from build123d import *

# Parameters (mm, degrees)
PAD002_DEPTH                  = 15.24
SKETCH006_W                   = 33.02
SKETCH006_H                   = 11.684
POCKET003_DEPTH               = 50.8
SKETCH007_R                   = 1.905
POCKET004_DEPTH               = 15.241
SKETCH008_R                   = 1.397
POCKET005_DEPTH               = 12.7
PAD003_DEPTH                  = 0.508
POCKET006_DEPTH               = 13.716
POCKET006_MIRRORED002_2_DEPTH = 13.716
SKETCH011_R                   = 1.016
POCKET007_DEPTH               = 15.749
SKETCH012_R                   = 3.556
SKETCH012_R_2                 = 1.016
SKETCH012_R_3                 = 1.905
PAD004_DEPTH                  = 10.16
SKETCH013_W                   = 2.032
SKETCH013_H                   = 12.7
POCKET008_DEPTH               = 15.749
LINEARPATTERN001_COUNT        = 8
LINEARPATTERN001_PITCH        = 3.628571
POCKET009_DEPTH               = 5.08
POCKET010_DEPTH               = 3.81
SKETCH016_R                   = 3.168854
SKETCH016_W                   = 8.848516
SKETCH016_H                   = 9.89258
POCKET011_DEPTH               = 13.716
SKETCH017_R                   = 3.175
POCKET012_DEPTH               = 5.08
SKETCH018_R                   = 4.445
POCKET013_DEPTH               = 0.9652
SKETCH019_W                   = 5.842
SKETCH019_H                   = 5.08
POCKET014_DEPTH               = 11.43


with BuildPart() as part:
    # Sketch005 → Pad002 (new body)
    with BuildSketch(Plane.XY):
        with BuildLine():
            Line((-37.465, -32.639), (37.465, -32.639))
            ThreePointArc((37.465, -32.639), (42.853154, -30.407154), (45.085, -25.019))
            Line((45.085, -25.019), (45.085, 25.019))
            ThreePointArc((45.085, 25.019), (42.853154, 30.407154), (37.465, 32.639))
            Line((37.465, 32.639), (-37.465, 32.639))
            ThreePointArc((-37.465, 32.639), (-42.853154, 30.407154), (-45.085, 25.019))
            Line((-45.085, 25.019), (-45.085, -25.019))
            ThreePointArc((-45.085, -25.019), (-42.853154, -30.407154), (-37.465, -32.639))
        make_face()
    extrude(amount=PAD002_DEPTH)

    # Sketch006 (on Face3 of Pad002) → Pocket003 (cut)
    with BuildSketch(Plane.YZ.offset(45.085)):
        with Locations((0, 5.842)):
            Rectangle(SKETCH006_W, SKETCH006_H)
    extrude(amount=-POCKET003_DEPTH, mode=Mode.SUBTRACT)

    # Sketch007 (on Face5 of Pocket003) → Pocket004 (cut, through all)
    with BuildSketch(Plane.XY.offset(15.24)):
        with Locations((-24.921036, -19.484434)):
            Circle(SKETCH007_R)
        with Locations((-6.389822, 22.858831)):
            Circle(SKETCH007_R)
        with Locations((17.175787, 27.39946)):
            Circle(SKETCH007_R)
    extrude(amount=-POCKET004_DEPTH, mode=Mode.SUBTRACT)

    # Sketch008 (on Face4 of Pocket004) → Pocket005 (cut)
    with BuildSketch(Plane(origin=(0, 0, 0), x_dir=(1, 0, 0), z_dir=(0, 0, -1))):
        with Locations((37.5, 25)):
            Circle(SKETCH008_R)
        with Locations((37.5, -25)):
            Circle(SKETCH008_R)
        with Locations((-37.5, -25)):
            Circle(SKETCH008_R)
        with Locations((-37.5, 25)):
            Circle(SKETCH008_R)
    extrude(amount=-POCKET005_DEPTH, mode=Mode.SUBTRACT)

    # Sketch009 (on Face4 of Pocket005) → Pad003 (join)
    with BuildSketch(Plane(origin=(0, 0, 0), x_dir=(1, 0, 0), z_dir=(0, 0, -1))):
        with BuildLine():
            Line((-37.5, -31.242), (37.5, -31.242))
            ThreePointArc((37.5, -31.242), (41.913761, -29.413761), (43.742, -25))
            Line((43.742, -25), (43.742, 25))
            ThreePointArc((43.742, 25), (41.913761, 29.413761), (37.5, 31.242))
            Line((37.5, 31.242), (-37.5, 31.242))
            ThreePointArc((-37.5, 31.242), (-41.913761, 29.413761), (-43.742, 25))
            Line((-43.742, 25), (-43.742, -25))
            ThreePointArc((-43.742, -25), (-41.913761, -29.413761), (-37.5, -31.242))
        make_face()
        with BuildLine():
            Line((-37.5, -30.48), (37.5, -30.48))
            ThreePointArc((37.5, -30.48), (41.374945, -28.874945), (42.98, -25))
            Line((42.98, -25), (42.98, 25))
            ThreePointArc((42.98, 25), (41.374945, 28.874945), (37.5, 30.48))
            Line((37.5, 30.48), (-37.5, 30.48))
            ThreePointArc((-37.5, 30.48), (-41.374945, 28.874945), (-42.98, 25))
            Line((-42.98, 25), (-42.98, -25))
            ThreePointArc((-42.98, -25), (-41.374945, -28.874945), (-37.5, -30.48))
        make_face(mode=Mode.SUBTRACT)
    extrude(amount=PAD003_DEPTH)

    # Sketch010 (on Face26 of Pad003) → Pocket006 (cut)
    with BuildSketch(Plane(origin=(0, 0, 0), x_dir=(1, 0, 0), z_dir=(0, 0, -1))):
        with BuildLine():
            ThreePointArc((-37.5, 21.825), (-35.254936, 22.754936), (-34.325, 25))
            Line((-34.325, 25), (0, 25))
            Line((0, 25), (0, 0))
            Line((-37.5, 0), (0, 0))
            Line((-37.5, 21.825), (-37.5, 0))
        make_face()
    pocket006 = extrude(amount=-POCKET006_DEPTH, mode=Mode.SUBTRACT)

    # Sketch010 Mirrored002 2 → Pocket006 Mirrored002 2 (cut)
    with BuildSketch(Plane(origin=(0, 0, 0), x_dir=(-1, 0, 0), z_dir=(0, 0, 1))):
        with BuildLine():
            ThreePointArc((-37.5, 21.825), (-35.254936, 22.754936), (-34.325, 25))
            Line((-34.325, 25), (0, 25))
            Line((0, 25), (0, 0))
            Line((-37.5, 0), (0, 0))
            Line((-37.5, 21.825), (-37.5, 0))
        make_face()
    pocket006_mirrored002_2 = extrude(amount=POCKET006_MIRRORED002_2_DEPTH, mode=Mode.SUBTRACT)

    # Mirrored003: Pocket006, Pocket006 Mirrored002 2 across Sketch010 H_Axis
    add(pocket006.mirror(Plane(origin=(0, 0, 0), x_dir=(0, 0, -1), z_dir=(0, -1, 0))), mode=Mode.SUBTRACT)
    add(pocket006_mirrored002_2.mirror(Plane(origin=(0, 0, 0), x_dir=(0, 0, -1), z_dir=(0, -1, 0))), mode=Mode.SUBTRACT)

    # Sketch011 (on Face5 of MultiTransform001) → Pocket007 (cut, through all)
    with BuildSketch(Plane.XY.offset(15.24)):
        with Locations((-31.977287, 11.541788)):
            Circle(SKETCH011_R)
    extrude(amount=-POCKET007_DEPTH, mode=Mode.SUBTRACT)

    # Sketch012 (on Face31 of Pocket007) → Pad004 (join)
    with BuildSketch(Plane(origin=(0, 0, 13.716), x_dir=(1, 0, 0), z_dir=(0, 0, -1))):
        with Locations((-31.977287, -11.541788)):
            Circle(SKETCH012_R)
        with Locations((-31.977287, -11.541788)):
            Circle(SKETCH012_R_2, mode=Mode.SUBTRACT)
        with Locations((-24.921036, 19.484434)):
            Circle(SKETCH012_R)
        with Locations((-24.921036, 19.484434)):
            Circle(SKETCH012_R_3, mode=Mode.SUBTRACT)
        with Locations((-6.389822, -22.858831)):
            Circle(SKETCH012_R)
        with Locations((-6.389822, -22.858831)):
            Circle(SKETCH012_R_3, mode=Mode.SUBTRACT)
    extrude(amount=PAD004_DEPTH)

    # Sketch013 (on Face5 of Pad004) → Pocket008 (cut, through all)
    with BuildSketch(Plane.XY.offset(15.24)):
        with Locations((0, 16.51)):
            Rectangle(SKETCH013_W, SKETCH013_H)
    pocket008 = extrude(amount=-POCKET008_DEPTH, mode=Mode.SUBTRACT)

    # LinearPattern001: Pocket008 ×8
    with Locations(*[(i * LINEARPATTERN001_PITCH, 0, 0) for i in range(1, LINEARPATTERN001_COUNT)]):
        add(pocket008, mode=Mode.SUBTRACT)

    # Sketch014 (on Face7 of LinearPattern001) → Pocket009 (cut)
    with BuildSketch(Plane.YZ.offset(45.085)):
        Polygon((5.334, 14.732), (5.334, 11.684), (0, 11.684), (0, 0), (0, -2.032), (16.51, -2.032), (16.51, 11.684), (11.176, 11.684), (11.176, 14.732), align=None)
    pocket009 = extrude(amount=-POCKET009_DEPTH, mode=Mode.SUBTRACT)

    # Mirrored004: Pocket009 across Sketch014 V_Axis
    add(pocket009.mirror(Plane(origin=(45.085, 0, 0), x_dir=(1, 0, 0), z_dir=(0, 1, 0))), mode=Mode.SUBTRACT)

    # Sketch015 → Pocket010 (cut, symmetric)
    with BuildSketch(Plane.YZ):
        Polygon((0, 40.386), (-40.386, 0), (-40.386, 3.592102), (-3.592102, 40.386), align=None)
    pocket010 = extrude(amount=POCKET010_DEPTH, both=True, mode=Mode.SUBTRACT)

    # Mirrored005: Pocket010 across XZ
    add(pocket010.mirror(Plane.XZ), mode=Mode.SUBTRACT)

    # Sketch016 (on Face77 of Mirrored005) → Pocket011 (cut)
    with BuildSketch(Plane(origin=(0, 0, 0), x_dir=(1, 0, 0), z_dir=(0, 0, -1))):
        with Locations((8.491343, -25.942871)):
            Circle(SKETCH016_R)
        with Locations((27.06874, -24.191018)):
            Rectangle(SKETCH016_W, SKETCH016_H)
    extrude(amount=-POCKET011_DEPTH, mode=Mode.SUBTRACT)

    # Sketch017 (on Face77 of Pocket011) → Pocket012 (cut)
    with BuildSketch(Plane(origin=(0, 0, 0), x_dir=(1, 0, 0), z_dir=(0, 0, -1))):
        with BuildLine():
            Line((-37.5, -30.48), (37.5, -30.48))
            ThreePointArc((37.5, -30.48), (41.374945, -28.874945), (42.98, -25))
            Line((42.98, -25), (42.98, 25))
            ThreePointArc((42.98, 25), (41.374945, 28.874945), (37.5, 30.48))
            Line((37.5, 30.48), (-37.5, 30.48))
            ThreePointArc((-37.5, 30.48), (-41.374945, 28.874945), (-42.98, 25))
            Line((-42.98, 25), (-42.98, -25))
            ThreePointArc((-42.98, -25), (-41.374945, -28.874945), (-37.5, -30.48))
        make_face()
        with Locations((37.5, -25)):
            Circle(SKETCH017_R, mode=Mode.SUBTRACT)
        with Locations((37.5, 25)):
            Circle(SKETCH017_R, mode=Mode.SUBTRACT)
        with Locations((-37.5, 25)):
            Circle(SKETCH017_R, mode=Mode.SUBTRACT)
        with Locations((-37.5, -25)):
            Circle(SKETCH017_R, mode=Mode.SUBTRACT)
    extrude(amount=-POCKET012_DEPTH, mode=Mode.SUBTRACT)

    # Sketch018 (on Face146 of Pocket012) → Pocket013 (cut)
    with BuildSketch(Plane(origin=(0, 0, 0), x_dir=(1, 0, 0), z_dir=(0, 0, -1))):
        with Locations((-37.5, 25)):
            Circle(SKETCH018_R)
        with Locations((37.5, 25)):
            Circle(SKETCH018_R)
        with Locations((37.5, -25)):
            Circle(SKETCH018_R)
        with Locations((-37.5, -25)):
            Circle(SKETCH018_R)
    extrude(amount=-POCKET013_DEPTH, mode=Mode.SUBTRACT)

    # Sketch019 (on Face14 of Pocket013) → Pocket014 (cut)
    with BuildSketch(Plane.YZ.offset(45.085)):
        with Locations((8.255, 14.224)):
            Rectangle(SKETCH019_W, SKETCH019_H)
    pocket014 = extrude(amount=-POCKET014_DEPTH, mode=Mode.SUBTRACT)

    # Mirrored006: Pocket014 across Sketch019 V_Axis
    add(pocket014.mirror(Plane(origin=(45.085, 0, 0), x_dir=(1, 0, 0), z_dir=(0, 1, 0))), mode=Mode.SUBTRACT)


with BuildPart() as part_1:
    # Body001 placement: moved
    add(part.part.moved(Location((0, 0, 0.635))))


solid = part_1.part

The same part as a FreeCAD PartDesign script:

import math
import FreeCAD as App
import Part
import Sketcher

V = App.Vector
Q = App.Units.Quantity

doc = App.newDocument("Part")
body = doc.addObject("PartDesign::Body", "Body")

# Sketch on XY plane
sketch1 = body.newObject("Sketcher::SketchObject", "Sketch")
sketch1.AttachmentSupport = (doc.getObject("XY_Plane"), [""])
sketch1.MapMode = "FlatFace"
sketch1.addGeometry(Part.LineSegment(V(-37, -33, 0), V(37, -33, 0)), False)
sketch1.addGeometry(Part.ArcOfCircle(Part.Circle(V(37, -25, 0), V(0, 0, 1), 8), math.radians(-90), math.radians(0)), False)
sketch1.addGeometry(Part.LineSegment(V(45, -25, 0), V(45, 25, 0)), False)
sketch1.addGeometry(Part.ArcOfCircle(Part.Circle(V(37, 25, 0), V(0, 0, 1), 8), math.radians(0), math.radians(90)), False)
sketch1.addGeometry(Part.LineSegment(V(37, 33, 0), V(-37, 33, 0)), False)
sketch1.addGeometry(Part.ArcOfCircle(Part.Circle(V(-37, 25, 0), V(0, 0, 1), 8), math.radians(90), math.radians(180)), False)
sketch1.addGeometry(Part.LineSegment(V(-45, 25, 0), V(-45, -25, 0)), False)
sketch1.addGeometry(Part.ArcOfCircle(Part.Circle(V(-37, -25, 0), V(0, 0, 1), 8), math.radians(180), math.radians(270)), False)
sketch1.addConstraint(Sketcher.Constraint("Tangent", 0, 2, 1, 1))
sketch1.addConstraint(Sketcher.Constraint("Tangent", 1, 2, 2, 1))
sketch1.addConstraint(Sketcher.Constraint("Tangent", 2, 2, 3, 1))
sketch1.addConstraint(Sketcher.Constraint("Tangent", 3, 2, 4, 1))
sketch1.addConstraint(Sketcher.Constraint("Tangent", 4, 2, 5, 1))
sketch1.addConstraint(Sketcher.Constraint("Tangent", 5, 2, 6, 1))
sketch1.addConstraint(Sketcher.Constraint("Tangent", 6, 2, 7, 1))
sketch1.addConstraint(Sketcher.Constraint("Tangent", 7, 2, 0, 1))
sketch1.addConstraint(Sketcher.Constraint("Horizontal", 0))
sketch1.addConstraint(Sketcher.Constraint("Vertical", 2))
sketch1.addConstraint(Sketcher.Constraint("Horizontal", 4))
sketch1.addConstraint(Sketcher.Constraint("Vertical", 6))
sketch1.addConstraint(Sketcher.Constraint("Equal", 1, 3))
sketch1.addConstraint(Sketcher.Constraint("Equal", 3, 5))
sketch1.addConstraint(Sketcher.Constraint("Equal", 5, 7))
sketch1.addConstraint(Sketcher.Constraint("Symmetric", 1, 3, 5, 3, -1, 1))
sketch1.addConstraint(Sketcher.Constraint("Radius", 1, Q("0.3 in")))
sketch1.addConstraint(Sketcher.Constraint("DistanceX", 0, 1, 0, 2, Q("2.95 in")))
sketch1.addConstraint(Sketcher.Constraint("DistanceY", 2, 1, 2, 2, Q("1.97 in")))
pad1 = body.newObject("PartDesign::Pad", "Pad")
pad1.Profile = sketch1
pad1.Length = Q("0.6 in")

# Sketch on YZ plane
sketch2 = body.newObject("Sketcher::SketchObject", "Sketch001")
sketch2.AttachmentSupport = (doc.getObject("YZ_Plane"), [""])
sketch2.MapMode = "FlatFace"
sketch2.AttachmentOffset = App.Placement(V(0, 0, 1.775 * 25.4), App.Rotation())
sketch2.addGeometry(Part.LineSegment(V(-17, 12, 0), V(-17, 0, 0)), False)
sketch2.addGeometry(Part.LineSegment(V(-17, 0, 0), V(17, 0, 0)), False)
sketch2.addGeometry(Part.LineSegment(V(17, 0, 0), V(17, 12, 0)), False)
sketch2.addGeometry(Part.LineSegment(V(17, 12, 0), V(-17, 12, 0)), False)
sketch2.addConstraint(Sketcher.Constraint("Coincident", 0, 2, 1, 1))
sketch2.addConstraint(Sketcher.Constraint("Coincident", 1, 2, 2, 1))
sketch2.addConstraint(Sketcher.Constraint("Coincident", 2, 2, 3, 1))
sketch2.addConstraint(Sketcher.Constraint("Coincident", 3, 2, 0, 1))
sketch2.addConstraint(Sketcher.Constraint("Vertical", 0))
sketch2.addConstraint(Sketcher.Constraint("Horizontal", 1))
sketch2.addConstraint(Sketcher.Constraint("Vertical", 2))
sketch2.addConstraint(Sketcher.Constraint("Horizontal", 3))
sketch2.addConstraint(Sketcher.Constraint("Symmetric", 0, 2, 1, 2, -1, 1))
sketch2.addConstraint(Sketcher.Constraint("DistanceX", 1, 1, 1, 2, Q("1.3 in")))
sketch2.addConstraint(Sketcher.Constraint("DistanceY", 0, 2, 0, 1, Q("0.46 in")))
pocket1 = body.newObject("PartDesign::Pocket", "Pocket")
pocket1.Profile = sketch2
pocket1.Length = Q("2 in")

# Sketch on XY plane
sketch3 = body.newObject("Sketcher::SketchObject", "Sketch002")
sketch3.AttachmentSupport = (doc.getObject("XY_Plane"), [""])
sketch3.MapMode = "FlatFace"
sketch3.AttachmentOffset = App.Placement(V(0, 0, 0.6 * 25.4), App.Rotation())
sketch3.addGeometry(Part.Circle(V(-24.9, -19.5, 0), V(0, 0, 1), 1.9), False)
sketch3.addGeometry(Part.Circle(V(-6.4, 22.9, 0), V(0, 0, 1), 1.9), False)
sketch3.addGeometry(Part.Circle(V(17.2, 27.4, 0), V(0, 0, 1), 1.9), False)
sketch3.addConstraint(Sketcher.Constraint("Equal", 0, 1))
sketch3.addConstraint(Sketcher.Constraint("Equal", 1, 2))
sketch3.addConstraint(Sketcher.Constraint("Diameter", 0, Q("0.15 in")))
sketch3.addConstraint(Sketcher.Constraint("DistanceX", 1, 3, -1, 1, Q("6.389822 mm")))
sketch3.addConstraint(Sketcher.Constraint("DistanceY", -1, 1, 1, 3, Q("22.858831 mm")))
sketch3.addConstraint(Sketcher.Constraint("DistanceY", -1, 1, 2, 3, Q("27.39946 mm")))
sketch3.addConstraint(Sketcher.Constraint("DistanceX", 1, 3, 2, 3, Q("23.565609 mm")))
sketch3.addConstraint(Sketcher.Constraint("DistanceX", 0, 3, -1, 1, Q("24.921036 mm")))
sketch3.addConstraint(Sketcher.Constraint("DistanceY", 0, 3, -1, 1, Q("19.484434 mm")))
pocket2 = body.newObject("PartDesign::Pocket", "Pocket001")
pocket2.Profile = sketch3
pocket2.Type = "ThroughAll"

# Sketch on XY plane
sketch4 = body.newObject("Sketcher::SketchObject", "Sketch003")
sketch4.AttachmentSupport = (doc.getObject("XY_Plane"), [""])
sketch4.MapMode = "FlatFace"
sketch4.addGeometry(Part.Circle(V(37.5, -25, 0), V(0, 0, 1), 1.4), False)
sketch4.addGeometry(Part.Circle(V(37.5, 25, 0), V(0, 0, 1), 1.4), False)
sketch4.addGeometry(Part.Circle(V(-37.5, 25, 0), V(0, 0, 1), 1.4), False)
sketch4.addGeometry(Part.Circle(V(-37.5, -25, 0), V(0, 0, 1), 1.4), False)
sketch4.addConstraint(Sketcher.Constraint("Equal", 0, 1))
sketch4.addConstraint(Sketcher.Constraint("Equal", 1, 2))
sketch4.addConstraint(Sketcher.Constraint("Equal", 2, 3))
sketch4.addConstraint(Sketcher.Constraint("Symmetric", 0, 3, 2, 3, -1, 1))
sketch4.addConstraint(Sketcher.Constraint("Symmetric", 1, 3, 3, 3, -1, 1))
sketch4.addConstraint(Sketcher.Constraint("Symmetric", 1, 3, 2, 3, -2))
sketch4.addConstraint(Sketcher.Constraint("Diameter", 0, Q("0.11 in")))
sketch4.addConstraint(Sketcher.Constraint("DistanceX", -1, 1, 0, 3, Q("37.5 mm")))
sketch4.addConstraint(Sketcher.Constraint("DistanceY", 0, 3, -1, 1, Q("25 mm")))
pocket3 = body.newObject("PartDesign::Pocket", "Pocket002")
pocket3.Profile = sketch4
pocket3.Length = Q("0.5 in")
pocket3.Reversed = True

# Sketch on XY plane
sketch5 = body.newObject("Sketcher::SketchObject", "Sketch004")
sketch5.AttachmentSupport = (doc.getObject("XY_Plane"), [""])
sketch5.MapMode = "FlatFace"
sketch5.addGeometry(Part.LineSegment(V(-38, 31, 0), V(38, 31, 0)), False)
sketch5.addGeometry(Part.ArcOfCircle(Part.Circle(V(38, 25, 0), V(0, 0, 1), 6), math.radians(0), math.radians(90)), False)
sketch5.addGeometry(Part.LineSegment(V(44, 25, 0), V(44, -25, 0)), False)
sketch5.addGeometry(Part.ArcOfCircle(Part.Circle(V(38, -25, 0), V(0, 0, 1), 6), math.radians(-90), math.radians(0)), False)
sketch5.addGeometry(Part.LineSegment(V(38, -31, 0), V(-38, -31, 0)), False)
sketch5.addGeometry(Part.ArcOfCircle(Part.Circle(V(-38, -25, 0), V(0, 0, 1), 6), math.radians(180), math.radians(270)), False)
sketch5.addGeometry(Part.LineSegment(V(-44, -25, 0), V(-44, 25, 0)), False)
sketch5.addGeometry(Part.ArcOfCircle(Part.Circle(V(-38, 25, 0), V(0, 0, 1), 6), math.radians(90), math.radians(180)), False)
sketch5.addGeometry(Part.LineSegment(V(38, 30, 0), V(-38, 30, 0)), False)
sketch5.addGeometry(Part.ArcOfCircle(Part.Circle(V(-37, 25, 0), V(0, 0, 1), 5), math.radians(90), math.radians(180)), False)
sketch5.addGeometry(Part.LineSegment(V(-43, 25, 0), V(-43, -25, 0)), False)
sketch5.addGeometry(Part.ArcOfCircle(Part.Circle(V(-37, -25, 0), V(0, 0, 1), 5), math.radians(-180), math.radians(-90)), False)
sketch5.addGeometry(Part.LineSegment(V(-38, -30, 0), V(38, -30, 0)), False)
sketch5.addGeometry(Part.ArcOfCircle(Part.Circle(V(37, -25, 0), V(0, 0, 1), 5), math.radians(-90), math.radians(0)), False)
sketch5.addGeometry(Part.LineSegment(V(43, -25, 0), V(43, 25, 0)), False)
sketch5.addGeometry(Part.ArcOfCircle(Part.Circle(V(37, 25, 0), V(0, 0, 1), 5), math.radians(0), math.radians(90)), False)
sketch5.addConstraint(Sketcher.Constraint("Tangent", 0, 2, 1, 2))
sketch5.addConstraint(Sketcher.Constraint("Tangent", 1, 1, 2, 1))
sketch5.addConstraint(Sketcher.Constraint("Tangent", 2, 2, 3, 2))
sketch5.addConstraint(Sketcher.Constraint("Tangent", 3, 1, 4, 1))
sketch5.addConstraint(Sketcher.Constraint("Tangent", 4, 2, 5, 2))
sketch5.addConstraint(Sketcher.Constraint("Tangent", 5, 1, 6, 1))
sketch5.addConstraint(Sketcher.Constraint("Tangent", 6, 2, 7, 2))
sketch5.addConstraint(Sketcher.Constraint("Tangent", 7, 1, 0, 1))
sketch5.addConstraint(Sketcher.Constraint("Tangent", 8, 2, 9, 1))
sketch5.addConstraint(Sketcher.Constraint("Tangent", 9, 2, 10, 1))
sketch5.addConstraint(Sketcher.Constraint("Tangent", 10, 2, 11, 1))
sketch5.addConstraint(Sketcher.Constraint("Tangent", 11, 2, 12, 1))
sketch5.addConstraint(Sketcher.Constraint("Tangent", 12, 2, 13, 1))
sketch5.addConstraint(Sketcher.Constraint("Tangent", 13, 2, 14, 1))
sketch5.addConstraint(Sketcher.Constraint("Tangent", 14, 2, 15, 1))
sketch5.addConstraint(Sketcher.Constraint("Tangent", 15, 2, 8, 1))
sketch5.addConstraint(Sketcher.Constraint("Horizontal", 0))
sketch5.addConstraint(Sketcher.Constraint("Vertical", 2))
sketch5.addConstraint(Sketcher.Constraint("Horizontal", 4))
sketch5.addConstraint(Sketcher.Constraint("Vertical", 6))
sketch5.addConstraint(Sketcher.Constraint("Horizontal", 8))
sketch5.addConstraint(Sketcher.Constraint("Vertical", 10))
sketch5.addConstraint(Sketcher.Constraint("Horizontal", 12))
sketch5.addConstraint(Sketcher.Constraint("Vertical", 14))
sketch5.addConstraint(Sketcher.Constraint("Coincident", 9, 3, 7, 3))
sketch5.addConstraint(Sketcher.Constraint("Coincident", 11, 3, 5, 3))
sketch5.addConstraint(Sketcher.Constraint("Coincident", 13, 3, 3, 3))
sketch5.addConstraint(Sketcher.Constraint("Equal", 1, 3))
sketch5.addConstraint(Sketcher.Constraint("Equal", 3, 5))
sketch5.addConstraint(Sketcher.Constraint("Equal", 5, 7))
sketch5.addConstraint(Sketcher.Constraint("Equal", 13, 15))
sketch5.addConstraint(Sketcher.Constraint("Symmetric", 1, 3, 5, 3, -1, 1))
sketch5.addConstraint(Sketcher.Constraint("DistanceY", -1, 1, 8, 2, Q("1.2 in")))
sketch5.addConstraint(Sketcher.Constraint("DistanceY", -1, 1, 0, 2, Q("1.23 in")))
sketch5.addConstraint(Sketcher.Constraint("Radius", 1, Q("6.241998 mm")))
sketch5.addConstraint(Sketcher.Constraint("DistanceX", 0, 1, 0, 2, Q("75 mm")))
pad2 = body.newObject("PartDesign::Pad", "Pad001")
pad2.Profile = sketch5
pad2.Length = Q("0.02 in")
pad2.Reversed = True

# Sketch on XY plane
sketch6 = body.newObject("Sketcher::SketchObject", "Sketch005")
sketch6.AttachmentSupport = (doc.getObject("XY_Plane"), [""])
sketch6.MapMode = "FlatFace"
sketch6.addGeometry(Part.ArcOfCircle(Part.Circle(V(-37.5, -25, 0), V(0, 0, 1), 3.2), math.radians(0), math.radians(90)), False)
sketch6.addGeometry(Part.LineSegment(V(-37.5, -21.8, 0), V(-37.5, 0, 0)), False)
sketch6.addGeometry(Part.LineSegment(V(-37.5, 0, 0), V(0, 0, 0)), False)
sketch6.addGeometry(Part.LineSegment(V(0, 0, 0), V(0, -25, 0)), False)
sketch6.addGeometry(Part.LineSegment(V(0, -25, 0), V(-34.3, -25, 0)), False)
sketch6.addConstraint(Sketcher.Constraint("Coincident", 0, 2, 1, 1))
sketch6.addConstraint(Sketcher.Constraint("Coincident", 1, 2, 2, 1))
sketch6.addConstraint(Sketcher.Constraint("Coincident", 2, 2, 3, 1))
sketch6.addConstraint(Sketcher.Constraint("Coincident", 3, 2, 4, 1))
sketch6.addConstraint(Sketcher.Constraint("Coincident", 4, 2, 0, 1))
sketch6.addConstraint(Sketcher.Constraint("Vertical", 1))
sketch6.addConstraint(Sketcher.Constraint("Horizontal", 2))
sketch6.addConstraint(Sketcher.Constraint("Vertical", 3))
sketch6.addConstraint(Sketcher.Constraint("Horizontal", 4))
sketch6.addConstraint(Sketcher.Constraint("Coincident", 2, 2, -1, 1))
sketch6.addConstraint(Sketcher.Constraint("Horizontal", 0, 3, 3, 2))
sketch6.addConstraint(Sketcher.Constraint("Radius", 0, Q("0.125 in")))
sketch6.addConstraint(Sketcher.Constraint("DistanceX", 0, 2, 4, 2, Q("0.125 in")))
sketch6.addConstraint(Sketcher.Constraint("DistanceX", 2, 1, 2, 2, Q("37.5 mm")))
sketch6.addConstraint(Sketcher.Constraint("DistanceY", 1, 1, 1, 2, Q("21.825 mm")))
pocket4 = body.newObject("PartDesign::Pocket", "Pocket003")
pocket4.Profile = sketch6
pocket4.Length = Q("0.54 in")
pocket4.Reversed = True

# Sketch on XY plane
sketch7 = body.newObject("Sketcher::SketchObject", "Sketch006")
sketch7.AttachmentSupport = (doc.getObject("XY_Plane"), [""])
sketch7.MapMode = "FlatFace"
sketch7.addGeometry(Part.ArcOfCircle(Part.Circle(V(37.5, -25, 0), V(0, 0, 1), 3.2), math.radians(90), math.radians(180)), False)
sketch7.addGeometry(Part.LineSegment(V(37.5, -21.8, 0), V(37.5, 0, 0)), False)
sketch7.addGeometry(Part.LineSegment(V(37.5, 0, 0), V(0, 0, 0)), False)
sketch7.addGeometry(Part.LineSegment(V(0, 0, 0), V(0, -25, 0)), False)
sketch7.addGeometry(Part.LineSegment(V(0, -25, 0), V(34.3, -25, 0)), False)
sketch7.addConstraint(Sketcher.Constraint("Coincident", 0, 1, 1, 1))
sketch7.addConstraint(Sketcher.Constraint("Coincident", 1, 2, 2, 1))
sketch7.addConstraint(Sketcher.Constraint("Coincident", 2, 2, 3, 1))
sketch7.addConstraint(Sketcher.Constraint("Coincident", 3, 2, 4, 1))
sketch7.addConstraint(Sketcher.Constraint("Coincident", 4, 2, 0, 2))
sketch7.addConstraint(Sketcher.Constraint("Vertical", 1))
sketch7.addConstraint(Sketcher.Constraint("Horizontal", 2))
sketch7.addConstraint(Sketcher.Constraint("Vertical", 3))
sketch7.addConstraint(Sketcher.Constraint("Horizontal", 4))
sketch7.addConstraint(Sketcher.Constraint("Coincident", 2, 2, -1, 1))
sketch7.addConstraint(Sketcher.Constraint("Horizontal", 0, 3, 3, 2))
sketch7.addConstraint(Sketcher.Constraint("Radius", 0, Q("0.125 in")))
sketch7.addConstraint(Sketcher.Constraint("DistanceX", 4, 2, 0, 1, Q("0.125 in")))
sketch7.addConstraint(Sketcher.Constraint("DistanceX", 2, 2, 2, 1, Q("37.5 mm")))
sketch7.addConstraint(Sketcher.Constraint("DistanceY", 1, 1, 1, 2, Q("21.825 mm")))
pocket5 = body.newObject("PartDesign::Pocket", "Pocket004")
pocket5.Profile = sketch7
pocket5.Length = Q("0.54 in")
pocket5.Reversed = True
doc.recompute()

mirrored = body.newObject("PartDesign::Mirrored", "Mirrored")
mirrored.Originals = [pocket4, pocket5]
mirrored.MirrorPlane = (doc.getObject("XZ_Plane"), [""])
body.Tip = mirrored

# Sketch on XY plane
sketch8 = body.newObject("Sketcher::SketchObject", "Sketch007")
sketch8.AttachmentSupport = (doc.getObject("XY_Plane"), [""])
sketch8.MapMode = "FlatFace"
sketch8.AttachmentOffset = App.Placement(V(0, 0, 0.6 * 25.4), App.Rotation())
sketch8.addGeometry(Part.Circle(V(-32, 11.5, 0), V(0, 0, 1), 1), False)
sketch8.addConstraint(Sketcher.Constraint("Diameter", 0, Q("0.08 in")))
sketch8.addConstraint(Sketcher.Constraint("DistanceX", 0, 3, -1, 1, Q("31.977287 mm")))
sketch8.addConstraint(Sketcher.Constraint("DistanceY", -1, 1, 0, 3, Q("11.541788 mm")))
pocket6 = body.newObject("PartDesign::Pocket", "Pocket005")
pocket6.Profile = sketch8
pocket6.Type = "ThroughAll"

# Sketch on XY plane
sketch9 = body.newObject("Sketcher::SketchObject", "Sketch008")
sketch9.AttachmentSupport = (doc.getObject("XY_Plane"), [""])
sketch9.MapMode = "FlatFace"
sketch9.AttachmentOffset = App.Placement(V(0, 0, 0.54 * 25.4), App.Rotation())
sketch9.addGeometry(Part.Circle(V(-32, 11.5, 0), V(0, 0, 1), 3.6), False)
sketch9.addGeometry(Part.Circle(V(-32, 11.5, 0), V(0, 0, 1), 1), False)
sketch9.addGeometry(Part.Circle(V(-24.9, -19.5, 0), V(0, 0, 1), 3.6), False)
sketch9.addGeometry(Part.Circle(V(-24.9, -19.5, 0), V(0, 0, 1), 1.9), False)
sketch9.addGeometry(Part.Circle(V(-6.4, 22.9, 0), V(0, 0, 1), 3.6), False)
sketch9.addGeometry(Part.Circle(V(-6.4, 22.9, 0), V(0, 0, 1), 1.9), False)
sketch9.addConstraint(Sketcher.Constraint("Coincident", 1, 3, 0, 3))
sketch9.addConstraint(Sketcher.Constraint("Coincident", 3, 3, 2, 3))
sketch9.addConstraint(Sketcher.Constraint("Coincident", 5, 3, 4, 3))
sketch9.addConstraint(Sketcher.Constraint("Equal", 0, 2))
sketch9.addConstraint(Sketcher.Constraint("Equal", 2, 4))
sketch9.addConstraint(Sketcher.Constraint("Equal", 3, 5))
sketch9.addConstraint(Sketcher.Constraint("Diameter", 0, Q("0.28 in")))
sketch9.addConstraint(Sketcher.Constraint("Diameter", 1, Q("0.08 in")))
sketch9.addConstraint(Sketcher.Constraint("Diameter", 3, Q("0.15 in")))
sketch9.addConstraint(Sketcher.Constraint("DistanceX", 4, 3, -1, 1, Q("6.389822 mm")))
sketch9.addConstraint(Sketcher.Constraint("DistanceY", -1, 1, 4, 3, Q("22.858831 mm")))
sketch9.addConstraint(Sketcher.Constraint("DistanceX", 0, 3, 2, 3, Q("7.056251 mm")))
sketch9.addConstraint(Sketcher.Constraint("DistanceX", 0, 3, -1, 1, Q("31.977287 mm")))
sketch9.addConstraint(Sketcher.Constraint("DistanceY", -1, 1, 0, 3, Q("11.541788 mm")))
sketch9.addConstraint(Sketcher.Constraint("DistanceY", 2, 3, -1, 1, Q("19.484434 mm")))
pad3 = body.newObject("PartDesign::Pad", "Pad002")
pad3.Profile = sketch9
pad3.Length = Q("0.4 in")
pad3.Reversed = True

# Sketch on XY plane
sketch10 = body.newObject("Sketcher::SketchObject", "Sketch009")
sketch10.AttachmentSupport = (doc.getObject("XY_Plane"), [""])
sketch10.MapMode = "FlatFace"
sketch10.AttachmentOffset = App.Placement(V(0, 0, 0.6 * 25.4), App.Rotation())
sketch10.addGeometry(Part.LineSegment(V(-1, 22.9, 0), V(-1, 10.2, 0)), False)
sketch10.addGeometry(Part.LineSegment(V(-1, 10.2, 0), V(1, 10.2, 0)), False)
sketch10.addGeometry(Part.LineSegment(V(1, 10.2, 0), V(1, 22.9, 0)), False)
sketch10.addGeometry(Part.LineSegment(V(1, 22.9, 0), V(-1, 22.9, 0)), False)
sketch10.addConstraint(Sketcher.Constraint("Coincident", 0, 2, 1, 1))
sketch10.addConstraint(Sketcher.Constraint("Coincident", 1, 2, 2, 1))
sketch10.addConstraint(Sketcher.Constraint("Coincident", 2, 2, 3, 1))
sketch10.addConstraint(Sketcher.Constraint("Coincident", 3, 2, 0, 1))
sketch10.addConstraint(Sketcher.Constraint("Vertical", 0))
sketch10.addConstraint(Sketcher.Constraint("Horizontal", 1))
sketch10.addConstraint(Sketcher.Constraint("Vertical", 2))
sketch10.addConstraint(Sketcher.Constraint("Horizontal", 3))
sketch10.addConstraint(Sketcher.Constraint("DistanceY", 0, 2, 0, 1, Q("0.5 in")))
sketch10.addConstraint(Sketcher.Constraint("DistanceX", 1, 1, 1, 2, Q("0.08 in")))
sketch10.addConstraint(Sketcher.Constraint("DistanceY", -1, 1, 0, 2, Q("0.4 in")))
sketch10.addConstraint(Sketcher.Constraint("DistanceX", 0, 2, -1, 1, Q("0.04 in")))
pocket7 = body.newObject("PartDesign::Pocket", "Pocket006")
pocket7.Profile = sketch10
pocket7.Type = "ThroughAll"
doc.recompute()

linearpattern = body.newObject("PartDesign::LinearPattern", "LinearPattern")
linearpattern.Originals = [pocket7]
linearpattern.Direction = (doc.getObject("X_Axis"), [""])
linearpattern.Mode = "offset"
linearpattern.Offset = 3.628571
linearpattern.Occurrences = 8
body.Tip = linearpattern

# Sketch on YZ plane
sketch11 = body.newObject("Sketcher::SketchObject", "Sketch010")
sketch11.AttachmentSupport = (doc.getObject("YZ_Plane"), [""])
sketch11.MapMode = "FlatFace"
sketch11.AttachmentOffset = App.Placement(V(0, 0, 1.775 * 25.4), App.Rotation())
sketch11.addGeometry(Part.LineSegment(V(5.3, 14.7, 0), V(5.3, 11.7, 0)), False)
sketch11.addGeometry(Part.LineSegment(V(5.3, 11.7, 0), V(0, 11.7, 0)), False)
sketch11.addGeometry(Part.LineSegment(V(0, 11.7, 0), V(0, -2, 0)), False)
sketch11.addGeometry(Part.LineSegment(V(0, -2, 0), V(16.5, -2, 0)), False)
sketch11.addGeometry(Part.LineSegment(V(16.5, -2, 0), V(16.5, 11.7, 0)), False)
sketch11.addGeometry(Part.LineSegment(V(16.5, 11.7, 0), V(11.2, 11.7, 0)), False)
sketch11.addGeometry(Part.LineSegment(V(11.2, 11.7, 0), V(11.2, 14.7, 0)), False)
sketch11.addGeometry(Part.LineSegment(V(11.2, 14.7, 0), V(5.3, 14.7, 0)), False)
sketch11.addConstraint(Sketcher.Constraint("Coincident", 0, 2, 1, 1))
sketch11.addConstraint(Sketcher.Constraint("Coincident", 1, 2, 2, 1))
sketch11.addConstraint(Sketcher.Constraint("Coincident", 2, 2, 3, 1))
sketch11.addConstraint(Sketcher.Constraint("Coincident", 3, 2, 4, 1))
sketch11.addConstraint(Sketcher.Constraint("Coincident", 4, 2, 5, 1))
sketch11.addConstraint(Sketcher.Constraint("Coincident", 5, 2, 6, 1))
sketch11.addConstraint(Sketcher.Constraint("Coincident", 6, 2, 7, 1))
sketch11.addConstraint(Sketcher.Constraint("Coincident", 7, 2, 0, 1))
sketch11.addConstraint(Sketcher.Constraint("Vertical", 0))
sketch11.addConstraint(Sketcher.Constraint("Horizontal", 1))
sketch11.addConstraint(Sketcher.Constraint("Vertical", 2))
sketch11.addConstraint(Sketcher.Constraint("Horizontal", 3))
sketch11.addConstraint(Sketcher.Constraint("Vertical", 4))
sketch11.addConstraint(Sketcher.Constraint("Horizontal", 5))
sketch11.addConstraint(Sketcher.Constraint("Vertical", 6))
sketch11.addConstraint(Sketcher.Constraint("Horizontal", 7))
sketch11.addConstraint(Sketcher.Constraint("PointOnObject", 1, 2, -2))
sketch11.addConstraint(Sketcher.Constraint("Horizontal", 1, 2, 4, 2))
sketch11.addConstraint(Sketcher.Constraint("Equal", 1, 5))
sketch11.addConstraint(Sketcher.Constraint("DistanceX", 1, 2, 1, 1, Q("0.21 in")))
sketch11.addConstraint(Sketcher.Constraint("DistanceX", 3, 1, 3, 2, Q("0.65 in")))
sketch11.addConstraint(Sketcher.Constraint("DistanceY", 0, 2, 0, 1, Q("0.12 in")))
sketch11.addConstraint(Sketcher.Constraint("DistanceY", 2, 2, 2, 1, Q("0.54 in")))
sketch11.addConstraint(Sketcher.Constraint("DistanceY", -1, 1, 0, 2, Q("0.46 in")))
pocket8 = body.newObject("PartDesign::Pocket", "Pocket007")
pocket8.Profile = sketch11
pocket8.Length = Q("0.2 in")
doc.recompute()

mirrored2 = body.newObject("PartDesign::Mirrored", "Mirrored001")
mirrored2.Originals = [pocket8]
mirrored2.MirrorPlane = (doc.getObject("XZ_Plane"), [""])
body.Tip = mirrored2

# Sketch on YZ plane
sketch12 = body.newObject("Sketcher::SketchObject", "Sketch011")
sketch12.AttachmentSupport = (doc.getObject("YZ_Plane"), [""])
sketch12.MapMode = "FlatFace"
sketch12.addGeometry(Part.LineSegment(V(-40.4, 0, 0), V(0, 40.4, 0)), False)
sketch12.addGeometry(Part.LineSegment(V(0, 40.4, 0), V(-3.6, 40.4, 0)), False)
sketch12.addGeometry(Part.LineSegment(V(-3.6, 40.4, 0), V(-40.4, 3.6, 0)), False)
sketch12.addGeometry(Part.LineSegment(V(-40.4, 3.6, 0), V(-40.4, 0, 0)), False)
sketch12.addConstraint(Sketcher.Constraint("Coincident", 0, 2, 1, 1))
sketch12.addConstraint(Sketcher.Constraint("Coincident", 1, 2, 2, 1))
sketch12.addConstraint(Sketcher.Constraint("Coincident", 2, 2, 3, 1))
sketch12.addConstraint(Sketcher.Constraint("Coincident", 3, 2, 0, 1))
sketch12.addConstraint(Sketcher.Constraint("Horizontal", 1))
sketch12.addConstraint(Sketcher.Constraint("Vertical", 3))
sketch12.addConstraint(Sketcher.Constraint("PointOnObject", 0, 2, -2))
sketch12.addConstraint(Sketcher.Constraint("PointOnObject", 3, 2, -1))
sketch12.addConstraint(Sketcher.Constraint("Parallel", 0, 2))
sketch12.addConstraint(Sketcher.Constraint("Equal", 1, 3))
sketch12.addConstraint(Sketcher.Constraint("DistanceY", -1, 1, 0, 2, Q("1.59 in")))
sketch12.addConstraint(Sketcher.Constraint("DistanceX", 2, 2, 1, 2, Q("36.793898 mm")))
pocket9 = body.newObject("PartDesign::Pocket", "Pocket008")
pocket9.Profile = sketch12
pocket9.Length = Q("0.3 in")
pocket9.Midplane = True
doc.recompute()

mirrored3 = body.newObject("PartDesign::Mirrored", "Mirrored002")
mirrored3.Originals = [pocket9]
mirrored3.MirrorPlane = (doc.getObject("XZ_Plane"), [""])
body.Tip = mirrored3

# Sketch on XY plane
sketch13 = body.newObject("Sketcher::SketchObject", "Sketch012")
sketch13.AttachmentSupport = (doc.getObject("XY_Plane"), [""])
sketch13.MapMode = "FlatFace"
sketch13.addGeometry(Part.Circle(V(8.5, 25.9, 0), V(0, 0, 1), 3.2), False)
sketch13.addGeometry(Part.LineSegment(V(22.6, 19.2, 0), V(22.6, 29.1, 0)), False)
sketch13.addGeometry(Part.LineSegment(V(22.6, 29.1, 0), V(31.5, 29.1, 0)), False)
sketch13.addGeometry(Part.LineSegment(V(31.5, 29.1, 0), V(31.5, 19.2, 0)), False)
sketch13.addGeometry(Part.LineSegment(V(31.5, 19.2, 0), V(22.6, 19.2, 0)), False)
sketch13.addConstraint(Sketcher.Constraint("Coincident", 1, 2, 2, 1))
sketch13.addConstraint(Sketcher.Constraint("Coincident", 2, 2, 3, 1))
sketch13.addConstraint(Sketcher.Constraint("Coincident", 3, 2, 4, 1))
sketch13.addConstraint(Sketcher.Constraint("Coincident", 4, 2, 1, 1))
sketch13.addConstraint(Sketcher.Constraint("Vertical", 1))
sketch13.addConstraint(Sketcher.Constraint("Horizontal", 2))
sketch13.addConstraint(Sketcher.Constraint("Vertical", 3))
sketch13.addConstraint(Sketcher.Constraint("Horizontal", 4))
sketch13.addConstraint(Sketcher.Constraint("Diameter", 0, Q("6.337708 mm")))
sketch13.addConstraint(Sketcher.Constraint("DistanceY", 1, 1, 1, 2, Q("9.89258 mm")))
sketch13.addConstraint(Sketcher.Constraint("DistanceX", -1, 1, 2, 2, Q("31.492998 mm")))
sketch13.addConstraint(Sketcher.Constraint("DistanceX", 2, 1, 2, 2, Q("8.848516 mm")))
sketch13.addConstraint(Sketcher.Constraint("DistanceY", -1, 1, 0, 3, Q("25.942871 mm")))
sketch13.addConstraint(Sketcher.Constraint("DistanceY", -1, 1, 1, 2, Q("29.137308 mm")))
sketch13.addConstraint(Sketcher.Constraint("DistanceX", 0, 3, 1, 2, Q("14.153139 mm")))
pocket10 = body.newObject("PartDesign::Pocket", "Pocket009")
pocket10.Profile = sketch13
pocket10.Length = Q("0.54 in")
pocket10.Reversed = True

# Sketch on XY plane
sketch14 = body.newObject("Sketcher::SketchObject", "Sketch013")
sketch14.AttachmentSupport = (doc.getObject("XY_Plane"), [""])
sketch14.MapMode = "FlatFace"
sketch14.addGeometry(Part.LineSegment(V(-37.5, 30.5, 0), V(37.5, 30.5, 0)), False)
sketch14.addGeometry(Part.ArcOfCircle(Part.Circle(V(37.5, 25, 0), V(0, 0, 1), 5.5), math.radians(0), math.radians(90)), False)
sketch14.addGeometry(Part.LineSegment(V(43, 25, 0), V(43, -25, 0)), False)
sketch14.addGeometry(Part.ArcOfCircle(Part.Circle(V(37.5, -25, 0), V(0, 0, 1), 5.5), math.radians(-90), math.radians(0)), False)
sketch14.addGeometry(Part.LineSegment(V(37.5, -30.5, 0), V(-37.5, -30.5, 0)), False)
sketch14.addGeometry(Part.ArcOfCircle(Part.Circle(V(-37.5, -25, 0), V(0, 0, 1), 5.5), math.radians(-180), math.radians(-90)), False)
sketch14.addGeometry(Part.LineSegment(V(-43, -25, 0), V(-43, 25, 0)), False)
sketch14.addGeometry(Part.ArcOfCircle(Part.Circle(V(-37.5, 25, 0), V(0, 0, 1), 5.5), math.radians(90), math.radians(180)), False)
sketch14.addGeometry(Part.Circle(V(-37.5, 25, 0), V(0, 0, 1), 3.2), False)
sketch14.addGeometry(Part.Circle(V(37.5, 25, 0), V(0, 0, 1), 3.2), False)
sketch14.addGeometry(Part.Circle(V(-37.5, -25, 0), V(0, 0, 1), 3.2), False)
sketch14.addGeometry(Part.Circle(V(37.5, -25, 0), V(0, 0, 1), 3.2), False)
sketch14.addConstraint(Sketcher.Constraint("Tangent", 0, 2, 1, 2))
sketch14.addConstraint(Sketcher.Constraint("Tangent", 1, 1, 2, 1))
sketch14.addConstraint(Sketcher.Constraint("Tangent", 2, 2, 3, 2))
sketch14.addConstraint(Sketcher.Constraint("Tangent", 3, 1, 4, 1))
sketch14.addConstraint(Sketcher.Constraint("Tangent", 4, 2, 5, 2))
sketch14.addConstraint(Sketcher.Constraint("Tangent", 5, 1, 6, 1))
sketch14.addConstraint(Sketcher.Constraint("Tangent", 6, 2, 7, 2))
sketch14.addConstraint(Sketcher.Constraint("Tangent", 7, 1, 0, 1))
sketch14.addConstraint(Sketcher.Constraint("Horizontal", 0))
sketch14.addConstraint(Sketcher.Constraint("Vertical", 2))
sketch14.addConstraint(Sketcher.Constraint("Horizontal", 4))
sketch14.addConstraint(Sketcher.Constraint("Vertical", 6))
sketch14.addConstraint(Sketcher.Constraint("Coincident", 8, 3, 7, 3))
sketch14.addConstraint(Sketcher.Constraint("Coincident", 9, 3, 1, 3))
sketch14.addConstraint(Sketcher.Constraint("Coincident", 10, 3, 5, 3))
sketch14.addConstraint(Sketcher.Constraint("Coincident", 11, 3, 3, 3))
sketch14.addConstraint(Sketcher.Constraint("Equal", 1, 3))
sketch14.addConstraint(Sketcher.Constraint("Equal", 3, 5))
sketch14.addConstraint(Sketcher.Constraint("Equal", 5, 7))
sketch14.addConstraint(Sketcher.Constraint("Equal", 8, 9))
sketch14.addConstraint(Sketcher.Constraint("Equal", 9, 10))
sketch14.addConstraint(Sketcher.Constraint("Equal", 10, 11))
sketch14.addConstraint(Sketcher.Constraint("Symmetric", 1, 3, 5, 3, -1, 1))
sketch14.addConstraint(Sketcher.Constraint("Diameter", 8, Q("0.25 in")))
sketch14.addConstraint(Sketcher.Constraint("DistanceY", -1, 1, 0, 2, Q("1.2 in")))
sketch14.addConstraint(Sketcher.Constraint("Radius", 1, Q("5.480001 mm")))
sketch14.addConstraint(Sketcher.Constraint("DistanceX", 0, 1, 0, 2, Q("75 mm")))
pocket11 = body.newObject("PartDesign::Pocket", "Pocket010")
pocket11.Profile = sketch14
pocket11.Length = Q("0.2 in")
pocket11.Reversed = True

# Sketch on XY plane
sketch15 = body.newObject("Sketcher::SketchObject", "Sketch014")
sketch15.AttachmentSupport = (doc.getObject("XY_Plane"), [""])
sketch15.MapMode = "FlatFace"
sketch15.addGeometry(Part.Circle(V(-37.5, -25, 0), V(0, 0, 1), 4.4), False)
sketch15.addGeometry(Part.Circle(V(37.5, -25, 0), V(0, 0, 1), 4.4), False)
sketch15.addGeometry(Part.Circle(V(37.5, 25, 0), V(0, 0, 1), 4.4), False)
sketch15.addGeometry(Part.Circle(V(-37.5, 25, 0), V(0, 0, 1), 4.4), False)
sketch15.addConstraint(Sketcher.Constraint("Equal", 0, 1))
sketch15.addConstraint(Sketcher.Constraint("Equal", 1, 2))
sketch15.addConstraint(Sketcher.Constraint("Equal", 2, 3))
sketch15.addConstraint(Sketcher.Constraint("Symmetric", 0, 3, 2, 3, -1, 1))
sketch15.addConstraint(Sketcher.Constraint("Symmetric", 1, 3, 3, 3, -1, 1))
sketch15.addConstraint(Sketcher.Constraint("Symmetric", 0, 3, 1, 3, -2))
sketch15.addConstraint(Sketcher.Constraint("Diameter", 0, Q("0.35 in")))
sketch15.addConstraint(Sketcher.Constraint("DistanceX", 0, 3, -1, 1, Q("37.5 mm")))
sketch15.addConstraint(Sketcher.Constraint("DistanceY", 0, 3, -1, 1, Q("25 mm")))
pocket12 = body.newObject("PartDesign::Pocket", "Pocket011")
pocket12.Profile = sketch15
pocket12.Length = Q("0.038 in")
pocket12.Reversed = True

# Sketch on YZ plane
sketch16 = body.newObject("Sketcher::SketchObject", "Sketch015")
sketch16.AttachmentSupport = (doc.getObject("YZ_Plane"), [""])
sketch16.MapMode = "FlatFace"
sketch16.AttachmentOffset = App.Placement(V(0, 0, 1.775 * 25.4), App.Rotation())
sketch16.addGeometry(Part.LineSegment(V(5, 17, 0), V(5, 12, 0)), False)
sketch16.addGeometry(Part.LineSegment(V(5, 12, 0), V(11, 12, 0)), False)
sketch16.addGeometry(Part.LineSegment(V(11, 12, 0), V(11, 17, 0)), False)
sketch16.addGeometry(Part.LineSegment(V(11, 17, 0), V(5, 17, 0)), False)
sketch16.addConstraint(Sketcher.Constraint("Coincident", 0, 2, 1, 1))
sketch16.addConstraint(Sketcher.Constraint("Coincident", 1, 2, 2, 1))
sketch16.addConstraint(Sketcher.Constraint("Coincident", 2, 2, 3, 1))
sketch16.addConstraint(Sketcher.Constraint("Coincident", 3, 2, 0, 1))
sketch16.addConstraint(Sketcher.Constraint("Vertical", 0))
sketch16.addConstraint(Sketcher.Constraint("Horizontal", 1))
sketch16.addConstraint(Sketcher.Constraint("Vertical", 2))
sketch16.addConstraint(Sketcher.Constraint("Horizontal", 3))
sketch16.addConstraint(Sketcher.Constraint("DistanceY", 0, 2, 0, 1, Q("0.2 in")))
sketch16.addConstraint(Sketcher.Constraint("DistanceX", 1, 1, 1, 2, Q("0.23 in")))
sketch16.addConstraint(Sketcher.Constraint("DistanceX", -1, 1, 0, 2, Q("0.21 in")))
sketch16.addConstraint(Sketcher.Constraint("DistanceY", -1, 1, 0, 2, Q("0.46 in")))
pocket13 = body.newObject("PartDesign::Pocket", "Pocket012")
pocket13.Profile = sketch16
pocket13.Length = Q("0.45 in")
doc.recompute()

mirrored4 = body.newObject("PartDesign::Mirrored", "Mirrored003")
mirrored4.Originals = [pocket13]
mirrored4.MirrorPlane = (doc.getObject("XZ_Plane"), [""])
body.Tip = mirrored4
body2 = doc.addObject("PartDesign::Body", "Body001")
doc.recompute()

body.Placement = App.Placement(V(0, 0, 0.635), App.Rotation(V(0, 0, 1), 0))
boolean = body2.newObject("PartDesign::Boolean", "Boolean")
boolean.Type = "Fuse"
boolean.addObjects([body])

doc.recompute()
